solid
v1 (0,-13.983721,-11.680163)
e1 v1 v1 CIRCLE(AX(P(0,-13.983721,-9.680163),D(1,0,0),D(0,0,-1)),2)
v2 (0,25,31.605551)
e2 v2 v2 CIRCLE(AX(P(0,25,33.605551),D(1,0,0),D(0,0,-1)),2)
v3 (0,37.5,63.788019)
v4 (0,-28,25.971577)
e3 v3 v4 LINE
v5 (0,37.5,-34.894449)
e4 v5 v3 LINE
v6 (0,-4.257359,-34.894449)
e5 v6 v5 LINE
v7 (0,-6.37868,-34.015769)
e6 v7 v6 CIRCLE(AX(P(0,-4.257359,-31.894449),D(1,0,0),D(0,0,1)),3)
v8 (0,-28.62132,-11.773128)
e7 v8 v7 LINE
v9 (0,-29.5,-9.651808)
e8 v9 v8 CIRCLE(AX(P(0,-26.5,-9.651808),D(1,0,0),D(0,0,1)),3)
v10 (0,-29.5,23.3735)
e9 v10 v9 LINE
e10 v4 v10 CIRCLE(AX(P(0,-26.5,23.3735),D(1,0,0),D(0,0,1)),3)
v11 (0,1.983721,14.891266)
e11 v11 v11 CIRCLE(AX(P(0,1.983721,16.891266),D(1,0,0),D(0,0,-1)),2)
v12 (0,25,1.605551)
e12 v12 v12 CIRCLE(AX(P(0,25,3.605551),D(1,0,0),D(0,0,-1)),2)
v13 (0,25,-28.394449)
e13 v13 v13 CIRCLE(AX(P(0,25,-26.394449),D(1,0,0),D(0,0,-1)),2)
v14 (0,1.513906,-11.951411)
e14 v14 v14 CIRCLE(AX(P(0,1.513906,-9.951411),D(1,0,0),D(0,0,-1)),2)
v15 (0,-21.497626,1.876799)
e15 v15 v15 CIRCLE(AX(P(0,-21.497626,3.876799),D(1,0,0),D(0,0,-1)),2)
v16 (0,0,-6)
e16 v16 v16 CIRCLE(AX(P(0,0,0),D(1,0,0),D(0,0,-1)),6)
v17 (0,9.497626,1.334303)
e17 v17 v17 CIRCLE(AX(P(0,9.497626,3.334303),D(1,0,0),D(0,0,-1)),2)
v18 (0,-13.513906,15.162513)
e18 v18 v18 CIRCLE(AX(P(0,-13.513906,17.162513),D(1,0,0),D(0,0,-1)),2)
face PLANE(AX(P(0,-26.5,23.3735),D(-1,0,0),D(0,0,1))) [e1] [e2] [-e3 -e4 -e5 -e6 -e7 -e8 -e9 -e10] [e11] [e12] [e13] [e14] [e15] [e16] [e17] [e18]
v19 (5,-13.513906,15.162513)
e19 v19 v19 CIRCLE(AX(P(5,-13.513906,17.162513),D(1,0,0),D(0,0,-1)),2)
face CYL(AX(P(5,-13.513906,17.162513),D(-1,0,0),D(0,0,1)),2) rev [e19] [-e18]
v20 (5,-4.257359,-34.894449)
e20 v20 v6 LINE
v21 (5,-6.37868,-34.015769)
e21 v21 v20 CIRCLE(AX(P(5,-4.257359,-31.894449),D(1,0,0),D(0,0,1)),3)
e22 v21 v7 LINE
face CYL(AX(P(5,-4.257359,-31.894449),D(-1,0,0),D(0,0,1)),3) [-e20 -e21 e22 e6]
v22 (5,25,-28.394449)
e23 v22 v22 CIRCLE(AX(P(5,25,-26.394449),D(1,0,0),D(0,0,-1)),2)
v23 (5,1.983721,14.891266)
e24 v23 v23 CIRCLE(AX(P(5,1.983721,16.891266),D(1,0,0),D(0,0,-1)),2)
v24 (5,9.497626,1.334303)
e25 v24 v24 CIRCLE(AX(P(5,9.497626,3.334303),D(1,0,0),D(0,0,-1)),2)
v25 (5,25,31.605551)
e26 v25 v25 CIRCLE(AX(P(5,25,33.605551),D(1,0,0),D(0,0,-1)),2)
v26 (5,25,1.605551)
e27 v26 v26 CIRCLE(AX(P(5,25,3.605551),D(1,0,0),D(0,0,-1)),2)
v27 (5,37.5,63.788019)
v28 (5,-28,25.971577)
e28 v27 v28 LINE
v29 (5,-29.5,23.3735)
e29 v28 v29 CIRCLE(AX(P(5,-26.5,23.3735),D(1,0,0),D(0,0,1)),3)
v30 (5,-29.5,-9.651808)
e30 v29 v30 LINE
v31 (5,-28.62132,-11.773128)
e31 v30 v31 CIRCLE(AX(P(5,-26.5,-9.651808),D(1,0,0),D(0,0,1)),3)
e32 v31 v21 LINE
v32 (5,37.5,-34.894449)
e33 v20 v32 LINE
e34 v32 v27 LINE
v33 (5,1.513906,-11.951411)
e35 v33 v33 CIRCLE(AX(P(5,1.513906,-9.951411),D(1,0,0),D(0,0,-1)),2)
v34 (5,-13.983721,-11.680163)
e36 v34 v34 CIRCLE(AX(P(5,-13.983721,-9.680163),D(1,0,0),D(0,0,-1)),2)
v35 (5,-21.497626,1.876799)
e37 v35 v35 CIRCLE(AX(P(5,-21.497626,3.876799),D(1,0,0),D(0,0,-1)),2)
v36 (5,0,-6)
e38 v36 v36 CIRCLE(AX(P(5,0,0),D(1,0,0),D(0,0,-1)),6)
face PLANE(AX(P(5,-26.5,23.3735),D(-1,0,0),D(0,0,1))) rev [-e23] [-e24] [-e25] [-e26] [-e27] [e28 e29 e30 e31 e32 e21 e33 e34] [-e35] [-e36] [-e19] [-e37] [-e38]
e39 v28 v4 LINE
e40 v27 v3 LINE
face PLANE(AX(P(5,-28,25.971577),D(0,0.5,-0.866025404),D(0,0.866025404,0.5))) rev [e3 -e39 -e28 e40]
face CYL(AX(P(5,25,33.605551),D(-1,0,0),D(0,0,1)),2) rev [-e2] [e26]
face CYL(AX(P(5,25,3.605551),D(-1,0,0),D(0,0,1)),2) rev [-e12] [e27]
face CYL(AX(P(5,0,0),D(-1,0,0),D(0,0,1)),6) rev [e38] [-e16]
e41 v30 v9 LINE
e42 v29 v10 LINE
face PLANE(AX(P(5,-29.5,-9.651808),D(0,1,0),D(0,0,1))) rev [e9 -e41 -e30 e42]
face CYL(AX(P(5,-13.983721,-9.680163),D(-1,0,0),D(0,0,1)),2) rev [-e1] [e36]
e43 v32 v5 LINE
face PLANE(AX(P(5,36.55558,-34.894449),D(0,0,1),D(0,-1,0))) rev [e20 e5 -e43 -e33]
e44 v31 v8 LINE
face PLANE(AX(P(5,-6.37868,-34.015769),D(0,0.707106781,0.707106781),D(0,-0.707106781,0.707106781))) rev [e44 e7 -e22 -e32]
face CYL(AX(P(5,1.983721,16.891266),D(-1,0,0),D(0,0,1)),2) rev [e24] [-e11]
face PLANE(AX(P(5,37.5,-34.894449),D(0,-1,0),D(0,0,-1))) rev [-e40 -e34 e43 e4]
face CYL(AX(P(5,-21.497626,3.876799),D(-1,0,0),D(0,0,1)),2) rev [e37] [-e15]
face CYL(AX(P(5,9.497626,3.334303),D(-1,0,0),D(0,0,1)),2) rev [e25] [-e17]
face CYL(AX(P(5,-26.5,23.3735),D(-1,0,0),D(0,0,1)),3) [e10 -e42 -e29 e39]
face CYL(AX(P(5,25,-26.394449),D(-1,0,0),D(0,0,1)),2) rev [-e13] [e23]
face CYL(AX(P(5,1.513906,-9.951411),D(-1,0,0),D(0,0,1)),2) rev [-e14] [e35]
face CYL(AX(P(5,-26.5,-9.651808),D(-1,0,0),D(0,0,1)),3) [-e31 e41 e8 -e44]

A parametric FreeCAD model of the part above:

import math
import FreeCAD as App
import Part
import Sketcher

V = App.Vector
Q = App.Units.Quantity

doc = App.newDocument("Part")
body = doc.addObject("PartDesign::Body", "Body")

# Sketch on YZ plane
sketch1 = doc.addObject("Sketcher::SketchObject", "Sketch")
body.addObject(sketch1)
sketch1.AttachmentSupport = (doc.YZ_Plane, [""])
sketch1.MapMode = "FlatFace"
sketch1.addGeometry(Part.ArcOfCircle(Part.Circle(V(-4.3, -31.9, 0), V(0, 0, 1), 3), math.radians(-135), math.radians(-90)), False)
sketch1.addGeometry(Part.LineSegment(V(-4.3, -34.9, 0), V(37.5, -34.9, 0)), False)
sketch1.addGeometry(Part.LineSegment(V(37.5, -34.9, 0), V(37.5, 63.8, 0)), False)
sketch1.addGeometry(Part.LineSegment(V(37.5, 63.8, 0), V(-28, 26, 0)), False)
sketch1.addGeometry(Part.ArcOfCircle(Part.Circle(V(-26.5, 23.4, 0), V(0, 0, 1), 3), math.radians(120), math.radians(180)), False)
sketch1.addGeometry(Part.LineSegment(V(-29.5, 23.4, 0), V(-29.5, -9.7, 0)), False)
sketch1.addGeometry(Part.ArcOfCircle(Part.Circle(V(-26.5, -9.7, 0), V(0, 0, 1), 3), math.radians(180), math.radians(225)), False)
sketch1.addGeometry(Part.LineSegment(V(-28.6, -11.8, 0), V(-6.4, -34, 0)), False)
sketch1.addGeometry(Part.Circle(V(-14, -9.7, 0), V(0, 0, 1), 2), False)
sketch1.addGeometry(Part.Circle(V(1.5, -10, 0), V(0, 0, 1), 2), False)
sketch1.addGeometry(Part.Circle(V(0, 0, 0), V(0, 0, 1), 6), False)
sketch1.addGeometry(Part.Circle(V(-21.5, 3.9, 0), V(0, 0, 1), 2), False)
sketch1.addGeometry(Part.Circle(V(-13.5, 17.2, 0), V(0, 0, 1), 2), False)
sketch1.addGeometry(Part.Circle(V(9.5, 3.3, 0), V(0, 0, 1), 2), False)
sketch1.addGeometry(Part.Circle(V(25, -26.4, 0), V(0, 0, 1), 2), False)
sketch1.addGeometry(Part.Circle(V(2, 16.9, 0), V(0, 0, 1), 2), False)
sketch1.addGeometry(Part.Circle(V(25, 3.6, 0), V(0, 0, 1), 2), False)
sketch1.addGeometry(Part.Circle(V(25, 33.6, 0), V(0, 0, 1), 2), False)
sketch1.addConstraint(Sketcher.Constraint("Tangent", 0, 2, 1, 1))
sketch1.addConstraint(Sketcher.Constraint("Coincident", 1, 2, 2, 1))
sketch1.addConstraint(Sketcher.Constraint("Coincident", 2, 2, 3, 1))
sketch1.addConstraint(Sketcher.Constraint("Tangent", 3, 2, 4, 1))
sketch1.addConstraint(Sketcher.Constraint("Tangent", 4, 2, 5, 1))
sketch1.addConstraint(Sketcher.Constraint("Tangent", 5, 2, 6, 1))
sketch1.addConstraint(Sketcher.Constraint("Tangent", 6, 2, 7, 1))
sketch1.addConstraint(Sketcher.Constraint("Tangent", 7, 2, 0, 1))
sketch1.addConstraint(Sketcher.Constraint("Horizontal", 1))
sketch1.addConstraint(Sketcher.Constraint("Vertical", 2))
sketch1.addConstraint(Sketcher.Constraint("Vertical", 5))
sketch1.addConstraint(Sketcher.Constraint("Coincident", 10, 3, -1, 1))
sketch1.addConstraint(Sketcher.Constraint("Equal", 0, 4))
sketch1.addConstraint(Sketcher.Constraint("Equal", 4, 6))
sketch1.addConstraint(Sketcher.Constraint("Equal", 8, 9))
sketch1.addConstraint(Sketcher.Constraint("Equal", 9, 11))
sketch1.addConstraint(Sketcher.Constraint("Equal", 11, 12))
sketch1.addConstraint(Sketcher.Constraint("Equal", 12, 13))
sketch1.addConstraint(Sketcher.Constraint("Equal", 13, 14))
sketch1.addConstraint(Sketcher.Constraint("Equal", 14, 15))
sketch1.addConstraint(Sketcher.Constraint("Equal", 15, 16))
sketch1.addConstraint(Sketcher.Constraint("Equal", 16, 17))
sketch1.addConstraint(Sketcher.Constraint("Vertical", 14, 3, 16, 3))
sketch1.addConstraint(Sketcher.Constraint("Vertical", 16, 3, 17, 3))
sketch1.addConstraint(Sketcher.Constraint("Diameter", 8, 4.0))
sketch1.addConstraint(Sketcher.Constraint("Diameter", 10, 12.0))
sketch1.addConstraint(Sketcher.Constraint("Radius", 0, 3.0))
sketch1.addConstraint(Sketcher.Constraint("Angle", 3, Q("-150 deg")))
sketch1.addConstraint(Sketcher.Constraint("Angle", 7, Q("-45 deg")))
sketch1.addConstraint(Sketcher.Constraint("DistanceX", -1, 1, 14, 3, 25.0))
sketch1.addConstraint(Sketcher.Constraint("DistanceX", 3, 2, -1, 1, 28.0))
sketch1.addConstraint(Sketcher.Constraint("DistanceY", 14, 3, 16, 3, 30.0))
sketch1.addConstraint(Sketcher.Constraint("DistanceY", 16, 3, 17, 3, 30.0))
sketch1.addConstraint(Sketcher.Constraint("DistanceX", -1, 1, 1, 2, 37.5))
sketch1.addConstraint(Sketcher.Constraint("DistanceY", 0, 3, 14, 3, 5.5))
sketch1.addConstraint(Sketcher.Constraint("DistanceX", 1, 1, 1, 2, 41.757359))
sketch1.addConstraint(Sketcher.Constraint("DistanceY", 2, 1, 2, 2, 98.682468))
sketch1.addConstraint(Sketcher.Constraint("DistanceY", -1, 1, 4, 3, 23.3735))
sketch1.addConstraint(Sketcher.Constraint("DistanceY", -1, 1, 11, 3, 3.876799))
sketch1.addConstraint(Sketcher.Constraint("DistanceX", 6, 2, 8, 3, 14.6376))
sketch1.addConstraint(Sketcher.Constraint("DistanceY", 9, 3, -1, 1, 9.951411))
sketch1.addConstraint(Sketcher.Constraint("DistanceX", -1, 1, 15, 3, 1.983721))
sketch1.addConstraint(Sketcher.Constraint("DistanceX", 11, 3, 12, 3, 7.983721))
sketch1.addConstraint(Sketcher.Constraint("DistanceY", 6, 3, 12, 3, 26.814321))
sketch1.addConstraint(Sketcher.Constraint("DistanceX", 9, 3, 13, 3, 7.983721))
sketch1.addConstraint(Sketcher.Constraint("DistanceY", 13, 3, 12, 3, 13.82821))
sketch1.addConstraint(Sketcher.Constraint("DistanceY", 15, 3, 3, 2, 9.080311))
sketch1.addConstraint(Sketcher.Constraint("DistanceY", 8, 3, -1, 1, 9.680163))
sketch1.addConstraint(Sketcher.Constraint("DistanceX", -1, 1, 9, 3, 1.513906))
sketch1.addConstraint(Sketcher.Constraint("DistanceX", 11, 3, -1, 1, 21.497626))
pad1 = doc.addObject("PartDesign::Pad", "Pad")
body.addObject(pad1)
pad1.Profile = sketch1
pad1.Length = 5

doc.recompute()
